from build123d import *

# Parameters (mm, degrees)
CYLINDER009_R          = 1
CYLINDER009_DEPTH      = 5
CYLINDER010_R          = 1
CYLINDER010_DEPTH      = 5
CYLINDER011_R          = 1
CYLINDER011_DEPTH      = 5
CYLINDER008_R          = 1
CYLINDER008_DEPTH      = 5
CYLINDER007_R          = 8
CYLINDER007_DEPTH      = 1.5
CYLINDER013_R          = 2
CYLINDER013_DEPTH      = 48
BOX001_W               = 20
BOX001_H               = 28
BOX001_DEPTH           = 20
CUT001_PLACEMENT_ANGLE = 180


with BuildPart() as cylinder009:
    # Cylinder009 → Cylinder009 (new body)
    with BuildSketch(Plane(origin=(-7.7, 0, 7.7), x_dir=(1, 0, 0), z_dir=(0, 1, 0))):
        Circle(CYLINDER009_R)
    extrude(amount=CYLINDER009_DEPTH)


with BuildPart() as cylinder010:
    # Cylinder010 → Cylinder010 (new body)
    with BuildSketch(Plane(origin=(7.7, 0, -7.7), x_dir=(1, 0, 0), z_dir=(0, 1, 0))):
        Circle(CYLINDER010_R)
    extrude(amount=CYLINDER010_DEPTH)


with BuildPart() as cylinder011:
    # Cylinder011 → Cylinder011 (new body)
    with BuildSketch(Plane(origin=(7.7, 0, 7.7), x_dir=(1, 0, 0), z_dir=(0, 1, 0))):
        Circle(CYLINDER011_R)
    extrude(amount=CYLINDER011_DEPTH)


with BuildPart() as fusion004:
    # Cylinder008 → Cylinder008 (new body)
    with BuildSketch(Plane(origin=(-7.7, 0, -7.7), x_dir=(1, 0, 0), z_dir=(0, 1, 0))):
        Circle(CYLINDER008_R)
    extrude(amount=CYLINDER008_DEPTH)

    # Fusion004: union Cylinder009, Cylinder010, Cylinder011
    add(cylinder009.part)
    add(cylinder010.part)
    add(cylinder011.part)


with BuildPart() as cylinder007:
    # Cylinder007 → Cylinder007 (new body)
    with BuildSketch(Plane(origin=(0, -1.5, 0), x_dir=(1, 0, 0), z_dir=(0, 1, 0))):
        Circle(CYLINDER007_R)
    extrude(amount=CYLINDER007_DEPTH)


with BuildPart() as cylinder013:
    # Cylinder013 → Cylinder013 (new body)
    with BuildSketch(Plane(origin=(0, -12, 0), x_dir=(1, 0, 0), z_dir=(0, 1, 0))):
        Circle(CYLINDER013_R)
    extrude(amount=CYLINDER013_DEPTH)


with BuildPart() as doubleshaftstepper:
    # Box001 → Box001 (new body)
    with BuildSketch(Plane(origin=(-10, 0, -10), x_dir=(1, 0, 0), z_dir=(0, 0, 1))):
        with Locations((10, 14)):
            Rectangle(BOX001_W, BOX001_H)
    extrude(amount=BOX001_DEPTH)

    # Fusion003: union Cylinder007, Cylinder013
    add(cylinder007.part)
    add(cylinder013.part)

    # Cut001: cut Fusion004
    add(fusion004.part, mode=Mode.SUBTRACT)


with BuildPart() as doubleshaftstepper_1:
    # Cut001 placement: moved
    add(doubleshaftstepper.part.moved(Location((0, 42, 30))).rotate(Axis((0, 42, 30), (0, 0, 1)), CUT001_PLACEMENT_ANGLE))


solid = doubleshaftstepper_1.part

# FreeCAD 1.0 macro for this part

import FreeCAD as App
import Part
import Sketcher

V = App.Vector


def add_polygon(sketch, points):
    """Adds a closed chain of lines whose ends are joined by coincident constraints."""
    first, n = sketch.GeometryCount, len(points)
    for a, b in zip(points, points[1:] + points[:1]):
        sketch.addGeometry(Part.LineSegment(App.Vector(*a, 0), App.Vector(*b, 0)), False)
    for i in range(n):
        sketch.addConstraint(Sketcher.Constraint("Coincident", first + i, 2, first + (i + 1) % n, 1))

doc = App.newDocument("Part")
body = doc.addObject("PartDesign::Body", "Body")

sketch1 = body.newObject("Sketcher::SketchObject", "Sketch")
sketch1.AttachmentSupport = (doc.getObject("XZ_Plane"), [""])
sketch1.MapMode = "FlatFace"
sketch1.addGeometry(Part.Circle(V(-7.7, 7.7, 0), V(0, 0, 1), 1), False)
sketch1.addConstraint([
    Sketcher.Constraint("Diameter", 0, 2.0),
    Sketcher.Constraint("DistanceX", 0, 3, -1, 1, 7.7),
    Sketcher.Constraint("DistanceY", -1, 1, 0, 3, 7.7),
])
pad1 = body.newObject("PartDesign::Pad", "Pad")
pad1.Profile = sketch1
pad1.Length = 5
pad1.Reversed = True
body2 = doc.addObject("PartDesign::Body", "Body001")

sketch2 = body2.newObject("Sketcher::SketchObject", "Sketch001")
sketch2.AttachmentSupport = (doc.getObject("XZ_Plane001"), [""])
sketch2.MapMode = "FlatFace"
sketch2.addGeometry(Part.Circle(V(7.7, -7.7, 0), V(0, 0, 1), 1), False)
sketch2.addConstraint([
    Sketcher.Constraint("Diameter", 0, 2.0),
    Sketcher.Constraint("DistanceX", -1, 1, 0, 3, 7.7),
    Sketcher.Constraint("DistanceY", 0, 3, -1, 1, 7.7),
])
pad2 = body2.newObject("PartDesign::Pad", "Pad001")
pad2.Profile = sketch2
pad2.Length = 5
pad2.Reversed = True
body3 = doc.addObject("PartDesign::Body", "Body002")

sketch3 = body3.newObject("Sketcher::SketchObject", "Sketch002")
sketch3.AttachmentSupport = (doc.getObject("XZ_Plane002"), [""])
sketch3.MapMode = "FlatFace"
sketch3.addGeometry(Part.Circle(V(7.7, 7.7, 0), V(0, 0, 1), 1), False)
sketch3.addConstraint([
    Sketcher.Constraint("Diameter", 0, 2.0),
    Sketcher.Constraint("DistanceX", -1, 1, 0, 3, 7.7),
    Sketcher.Constraint("DistanceY", -1, 1, 0, 3, 7.7),
])
pad3 = body3.newObject("PartDesign::Pad", "Pad002")
pad3.Profile = sketch3
pad3.Length = 5
pad3.Reversed = True
body4 = doc.addObject("PartDesign::Body", "Body003")
body4.AllowCompound = True

sketch4 = body4.newObject("Sketcher::SketchObject", "Sketch003")
sketch4.AttachmentSupport = (doc.getObject("XZ_Plane003"), [""])
sketch4.MapMode = "FlatFace"
sketch4.addGeometry(Part.Circle(V(-7.7, -7.7, 0), V(0, 0, 1), 1), False)
sketch4.addConstraint([
    Sketcher.Constraint("Diameter", 0, 2.0),
    Sketcher.Constraint("DistanceX", 0, 3, -1, 1, 7.7),
    Sketcher.Constraint("DistanceY", 0, 3, -1, 1, 7.7),
])
pad4 = body4.newObject("PartDesign::Pad", "Pad003")
pad4.Profile = sketch4
pad4.Length = 5
pad4.Reversed = True
doc.recompute()

boolean = body4.newObject("PartDesign::Boolean", "Boolean")
boolean.Type = "Fuse"
boolean.addObjects([body])
doc.recompute()

boolean2 = body4.newObject("PartDesign::Boolean", "Boolean001")
boolean2.Type = "Fuse"
boolean2.addObjects([body2])
doc.recompute()

boolean3 = body4.newObject("PartDesign::Boolean", "Boolean002")
boolean3.Type = "Fuse"
boolean3.addObjects([body3])
body5 = doc.addObject("PartDesign::Body", "Body004")

sketch5 = body5.newObject("Sketcher::SketchObject", "Sketch004")
sketch5.AttachmentSupport = (doc.getObject("XZ_Plane004"), [""])
sketch5.MapMode = "FlatFace"
sketch5.AttachmentOffset = App.Placement(V(0, 0, 1.5), App.Rotation())
sketch5.addGeometry(Part.Circle(V(0, 0, 0), V(0, 0, 1), 8), False)
sketch5.addConstraint([
    Sketcher.Constraint("Coincident", 0, 3, -1, 1),
    Sketcher.Constraint("Diameter", 0, 16.0),
])
pad5 = body5.newObject("PartDesign::Pad", "Pad004")
pad5.Profile = sketch5
pad5.Length = 1.5
pad5.Reversed = True
body6 = doc.addObject("PartDesign::Body", "Body005")

sketch6 = body6.newObject("Sketcher::SketchObject", "Sketch005")
sketch6.AttachmentSupport = (doc.getObject("XZ_Plane005"), [""])
sketch6.MapMode = "FlatFace"
sketch6.AttachmentOffset = App.Placement(V(0, 0, 12), App.Rotation())
sketch6.addGeometry(Part.Circle(V(0, 0, 0), V(0, 0, 1), 2), False)
sketch6.addConstraint([
    Sketcher.Constraint("Coincident", 0, 3, -1, 1),
    Sketcher.Constraint("Diameter", 0, 4.0),
])
pad6 = body6.newObject("PartDesign::Pad", "Pad005")
pad6.Profile = sketch6
pad6.Length = 48
pad6.Reversed = True
body7 = doc.addObject("PartDesign::Body", "Body006")

sketch7 = body7.newObject("Sketcher::SketchObject", "Sketch006")
sketch7.AttachmentSupport = (doc.getObject("XY_Plane006"), [""])
sketch7.MapMode = "FlatFace"
sketch7.AttachmentOffset = App.Placement(V(0, 0, -10), App.Rotation())
add_polygon(sketch7, [(-10, 28), (-10, 0), (10, 0), (10, 28)])
sketch7.addConstraint([
    Sketcher.Constraint("Vertical", 0),
    Sketcher.Constraint("Horizontal", 1),
    Sketcher.Constraint("Vertical", 2),
    Sketcher.Constraint("Horizontal", 3),
    Sketcher.Constraint("Symmetric", 0, 2, 1, 2, -1, 1),
    Sketcher.Constraint("DistanceX", 1, 1, 1, 2, 20.0),
    Sketcher.Constraint("DistanceY", 0, 2, 0, 1, 28.0),
])
pad7 = body7.newObject("PartDesign::Pad", "Pad006")
pad7.Profile = sketch7
pad7.Length = 20
doc.recompute()

boolean4 = body7.newObject("PartDesign::Boolean", "Boolean003")
boolean4.Type = "Fuse"
boolean4.addObjects([body5])
doc.recompute()

boolean5 = body7.newObject("PartDesign::Boolean", "Boolean004")
boolean5.Type = "Fuse"
boolean5.addObjects([body6])
doc.recompute()

boolean6 = body7.newObject("PartDesign::Boolean", "Boolean005")
boolean6.Type = "Cut"
boolean6.addObjects([body4])
body8 = doc.addObject("PartDesign::Body", "Body007")
doc.recompute()

body7.Placement = App.Placement(V(0, 42, 30), App.Rotation(V(0, 0, 1), 180))
boolean7 = body8.newObject("PartDesign::Boolean", "Boolean006")
boolean7.Type = "Fuse"
boolean7.addObjects([body7])

doc.recompute()
